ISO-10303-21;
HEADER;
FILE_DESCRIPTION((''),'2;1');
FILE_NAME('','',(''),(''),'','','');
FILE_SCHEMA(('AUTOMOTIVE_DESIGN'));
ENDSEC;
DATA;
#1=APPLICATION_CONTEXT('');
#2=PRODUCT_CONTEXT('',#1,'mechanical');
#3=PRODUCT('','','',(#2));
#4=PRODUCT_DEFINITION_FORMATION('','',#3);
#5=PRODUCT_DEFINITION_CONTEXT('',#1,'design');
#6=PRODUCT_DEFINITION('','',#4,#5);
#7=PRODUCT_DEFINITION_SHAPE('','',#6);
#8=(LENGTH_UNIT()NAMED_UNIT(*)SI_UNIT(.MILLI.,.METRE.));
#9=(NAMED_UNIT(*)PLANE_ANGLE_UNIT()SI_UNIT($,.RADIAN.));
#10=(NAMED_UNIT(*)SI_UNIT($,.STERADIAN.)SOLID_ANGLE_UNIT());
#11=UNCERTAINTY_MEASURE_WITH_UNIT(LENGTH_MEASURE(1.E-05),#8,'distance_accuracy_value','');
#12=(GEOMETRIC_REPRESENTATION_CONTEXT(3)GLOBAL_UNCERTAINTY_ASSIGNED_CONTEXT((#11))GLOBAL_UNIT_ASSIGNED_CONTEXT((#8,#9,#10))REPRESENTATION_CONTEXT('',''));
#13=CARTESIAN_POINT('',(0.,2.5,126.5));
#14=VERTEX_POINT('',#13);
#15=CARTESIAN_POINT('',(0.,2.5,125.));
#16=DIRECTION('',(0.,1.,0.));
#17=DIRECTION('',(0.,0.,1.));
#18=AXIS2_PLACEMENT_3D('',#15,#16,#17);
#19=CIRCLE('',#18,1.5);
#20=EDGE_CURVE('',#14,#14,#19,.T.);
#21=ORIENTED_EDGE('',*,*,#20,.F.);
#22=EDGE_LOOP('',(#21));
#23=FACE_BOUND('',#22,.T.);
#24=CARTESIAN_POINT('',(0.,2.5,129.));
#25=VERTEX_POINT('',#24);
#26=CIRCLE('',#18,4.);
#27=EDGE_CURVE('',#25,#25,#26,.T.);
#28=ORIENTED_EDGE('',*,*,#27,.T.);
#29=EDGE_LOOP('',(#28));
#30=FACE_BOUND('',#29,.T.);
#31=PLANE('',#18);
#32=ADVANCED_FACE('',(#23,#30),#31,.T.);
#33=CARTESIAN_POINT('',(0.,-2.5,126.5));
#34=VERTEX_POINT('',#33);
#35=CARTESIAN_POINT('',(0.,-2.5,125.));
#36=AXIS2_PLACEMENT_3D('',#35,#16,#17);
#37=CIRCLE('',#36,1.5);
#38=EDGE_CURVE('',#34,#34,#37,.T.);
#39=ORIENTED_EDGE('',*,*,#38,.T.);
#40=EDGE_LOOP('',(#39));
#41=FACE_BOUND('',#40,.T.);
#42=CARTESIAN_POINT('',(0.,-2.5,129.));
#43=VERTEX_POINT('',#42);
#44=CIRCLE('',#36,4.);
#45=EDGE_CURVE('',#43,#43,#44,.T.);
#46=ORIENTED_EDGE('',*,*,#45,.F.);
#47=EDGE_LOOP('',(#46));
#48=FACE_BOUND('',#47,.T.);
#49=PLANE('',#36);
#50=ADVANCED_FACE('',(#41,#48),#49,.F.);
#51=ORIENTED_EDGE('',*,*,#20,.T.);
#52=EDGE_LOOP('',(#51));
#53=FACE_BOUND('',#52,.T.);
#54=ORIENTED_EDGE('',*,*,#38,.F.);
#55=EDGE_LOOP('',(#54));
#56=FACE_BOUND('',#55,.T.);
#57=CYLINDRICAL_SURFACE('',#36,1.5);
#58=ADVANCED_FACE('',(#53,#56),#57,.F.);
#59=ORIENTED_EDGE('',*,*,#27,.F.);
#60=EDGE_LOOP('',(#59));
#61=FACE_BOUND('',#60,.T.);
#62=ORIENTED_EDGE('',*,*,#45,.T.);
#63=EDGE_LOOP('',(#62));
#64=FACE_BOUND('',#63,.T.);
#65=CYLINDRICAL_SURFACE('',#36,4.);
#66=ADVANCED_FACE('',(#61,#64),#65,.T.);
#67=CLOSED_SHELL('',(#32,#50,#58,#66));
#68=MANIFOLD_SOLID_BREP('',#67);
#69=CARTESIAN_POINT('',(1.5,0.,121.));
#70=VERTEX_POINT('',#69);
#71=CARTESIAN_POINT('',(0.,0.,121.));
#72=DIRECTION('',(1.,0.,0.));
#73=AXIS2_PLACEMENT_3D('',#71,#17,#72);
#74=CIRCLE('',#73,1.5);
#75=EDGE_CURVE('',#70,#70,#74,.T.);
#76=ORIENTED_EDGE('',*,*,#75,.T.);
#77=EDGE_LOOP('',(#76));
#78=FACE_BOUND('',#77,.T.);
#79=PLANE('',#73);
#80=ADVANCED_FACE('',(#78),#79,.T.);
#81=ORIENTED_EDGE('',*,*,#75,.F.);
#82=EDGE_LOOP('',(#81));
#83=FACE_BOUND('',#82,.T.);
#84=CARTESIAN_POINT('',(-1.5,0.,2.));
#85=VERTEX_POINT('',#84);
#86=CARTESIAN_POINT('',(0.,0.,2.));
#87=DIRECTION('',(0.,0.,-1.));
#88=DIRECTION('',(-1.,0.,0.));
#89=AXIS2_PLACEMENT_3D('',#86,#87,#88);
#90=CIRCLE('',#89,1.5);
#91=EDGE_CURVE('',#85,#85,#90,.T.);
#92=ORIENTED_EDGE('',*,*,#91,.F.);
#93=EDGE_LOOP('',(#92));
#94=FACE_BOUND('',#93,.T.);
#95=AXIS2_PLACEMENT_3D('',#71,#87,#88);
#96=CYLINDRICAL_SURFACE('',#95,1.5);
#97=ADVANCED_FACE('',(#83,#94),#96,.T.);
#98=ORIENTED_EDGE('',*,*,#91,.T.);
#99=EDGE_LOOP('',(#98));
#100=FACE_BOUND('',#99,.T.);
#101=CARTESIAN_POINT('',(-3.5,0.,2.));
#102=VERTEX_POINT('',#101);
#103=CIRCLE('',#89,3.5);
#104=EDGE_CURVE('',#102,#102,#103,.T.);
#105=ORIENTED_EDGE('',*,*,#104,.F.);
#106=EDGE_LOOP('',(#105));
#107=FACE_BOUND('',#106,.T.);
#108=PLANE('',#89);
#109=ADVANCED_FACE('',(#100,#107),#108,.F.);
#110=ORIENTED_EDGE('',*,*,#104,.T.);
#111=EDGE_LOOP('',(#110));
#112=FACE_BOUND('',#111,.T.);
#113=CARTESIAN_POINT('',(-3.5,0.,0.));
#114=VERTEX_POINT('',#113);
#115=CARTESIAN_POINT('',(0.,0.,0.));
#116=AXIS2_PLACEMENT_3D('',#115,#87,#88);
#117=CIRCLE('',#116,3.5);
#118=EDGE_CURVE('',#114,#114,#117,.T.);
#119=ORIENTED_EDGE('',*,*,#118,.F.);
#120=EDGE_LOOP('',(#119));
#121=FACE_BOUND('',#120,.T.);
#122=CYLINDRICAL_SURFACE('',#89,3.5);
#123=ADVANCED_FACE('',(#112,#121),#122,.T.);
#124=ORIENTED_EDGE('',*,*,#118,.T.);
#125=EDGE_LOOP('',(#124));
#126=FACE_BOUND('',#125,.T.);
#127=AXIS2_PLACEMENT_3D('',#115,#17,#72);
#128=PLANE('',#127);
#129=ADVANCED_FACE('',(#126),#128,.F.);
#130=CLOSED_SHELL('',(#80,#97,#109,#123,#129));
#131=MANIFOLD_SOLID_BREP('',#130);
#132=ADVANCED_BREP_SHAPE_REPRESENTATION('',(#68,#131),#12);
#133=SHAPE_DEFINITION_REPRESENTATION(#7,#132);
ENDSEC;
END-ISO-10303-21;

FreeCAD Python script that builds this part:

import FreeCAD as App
import Part
import Sketcher

V = App.Vector
Q = App.Units.Quantity

doc = App.newDocument("Part")
body = doc.addObject("PartDesign::Body", "Body")

# Sketch on XY plane
sketch1 = body.newObject("Sketcher::SketchObject", "Sketch")
sketch1.AttachmentSupport = (doc.getObject("XY_Plane"), [""])
sketch1.MapMode = "FlatFace"
sketch1.addGeometry(Part.Circle(V(0, 0, 0), V(0, 0, 1), 1.5), False)
sketch1.addConstraint([
    Sketcher.Constraint("Coincident", 0, 3, -1, 1),
    Sketcher.Constraint("Diameter", 0, Q("3 mm")),
])
pad1 = body.newObject("PartDesign::Pad", "Pad")
pad1.Profile = sketch1
pad1.Length = 121

# Sketch on XY plane
sketch2 = body.newObject("Sketcher::SketchObject", "Sketch001")
sketch2.AttachmentSupport = (doc.getObject("XY_Plane"), [""])
sketch2.MapMode = "FlatFace"
sketch2.addGeometry(Part.Circle(V(0, 0, 0), V(0, 0, 1), 3.5), False)
sketch2.addConstraint([
    Sketcher.Constraint("Coincident", 0, 3, -1, 1),
    Sketcher.Constraint("Diameter", 0, Q("7 mm")),
])
pad2 = body.newObject("PartDesign::Pad", "Pad001")
pad2.Profile = sketch2
pad2.Length = 2
body2 = doc.addObject("PartDesign::Body", "Body001")

# Sketch on XZ plane
sketch3 = body2.newObject("Sketcher::SketchObject", "Sketch002")
sketch3.AttachmentSupport = (doc.getObject("XZ_Plane001"), [""])
sketch3.MapMode = "FlatFace"
sketch3.addGeometry([
    Part.Circle(V(0, 125, 0), V(0, 0, 1), 4),
    Part.Circle(V(0, 125, 0), V(0, 0, 1), 1.5),
], False)
sketch3.addConstraint([
    Sketcher.Constraint("Coincident", 1, 3, 0, 3),
    Sketcher.Constraint("PointOnObject", 0, 3, -2),
    Sketcher.Constraint("Diameter", 0, Q("8 mm")),
    Sketcher.Constraint("Diameter", 1, Q("3 mm")),
    Sketcher.Constraint("DistanceY", -1, 1, 0, 3, Q("125 mm")),
])
pad3 = body2.newObject("PartDesign::Pad", "Pad002")
pad3.Profile = sketch3
pad3.Type = "TwoLengths"
pad3.Length = 2.5
pad3.Length2 = 2.5
pad3.Reversed = True

doc.recompute()
